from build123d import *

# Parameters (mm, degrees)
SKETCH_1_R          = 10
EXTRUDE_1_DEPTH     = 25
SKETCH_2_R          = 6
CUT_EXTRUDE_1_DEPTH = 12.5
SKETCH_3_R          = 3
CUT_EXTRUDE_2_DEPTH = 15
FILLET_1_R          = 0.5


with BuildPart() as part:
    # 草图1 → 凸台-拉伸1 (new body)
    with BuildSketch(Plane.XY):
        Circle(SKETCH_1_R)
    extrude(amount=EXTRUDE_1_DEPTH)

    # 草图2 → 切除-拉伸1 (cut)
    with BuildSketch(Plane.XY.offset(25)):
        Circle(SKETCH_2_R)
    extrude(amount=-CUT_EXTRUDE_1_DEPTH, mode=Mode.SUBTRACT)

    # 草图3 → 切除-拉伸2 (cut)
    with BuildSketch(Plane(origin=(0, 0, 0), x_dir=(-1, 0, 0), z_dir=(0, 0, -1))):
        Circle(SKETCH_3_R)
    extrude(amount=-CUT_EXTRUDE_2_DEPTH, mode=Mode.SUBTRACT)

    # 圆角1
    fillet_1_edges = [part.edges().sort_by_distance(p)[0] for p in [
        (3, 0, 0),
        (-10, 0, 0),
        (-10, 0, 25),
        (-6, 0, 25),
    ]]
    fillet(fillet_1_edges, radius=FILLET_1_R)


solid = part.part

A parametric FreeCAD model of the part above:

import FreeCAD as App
import Part
import Sketcher
Q = App.Units.Quantity


def edges_at(feature, points):
    """Names of the edges that pass closest to the given points."""
    edges = feature.Shape.Edges
    near = lambda p: min(range(len(edges)), key=lambda i: edges[i].distToShape(Part.Vertex(*p))[0])
    return sorted({f"Edge{near(p) + 1}" for p in points})

doc = App.newDocument("Part")
body = doc.addObject("PartDesign::Body", "Body")

# Sketch on XY plane
sketch1 = body.newObject("Sketcher::SketchObject", "Sketch")
sketch1.AttachmentSupport = (doc.getObject("XY_Plane"), [""])
sketch1.MapMode = "FlatFace"
sketch1.addGeometry(Part.Circle(App.Vector(0, 0, 0), App.Vector(0, 0, 1), 10), False)
sketch1.addConstraint(Sketcher.Constraint("Coincident", 0, 3, -1, 1))
sketch1.addConstraint(Sketcher.Constraint("Diameter", 0, Q("20 mm")))
pad1 = body.newObject("PartDesign::Pad", "Pad")
pad1.Profile = sketch1
pad1.Length = 25

# Sketch on XY plane
sketch2 = body.newObject("Sketcher::SketchObject", "Sketch001")
sketch2.AttachmentSupport = (doc.getObject("XY_Plane"), [""])
sketch2.MapMode = "FlatFace"
sketch2.AttachmentOffset = App.Placement(App.Vector(0, 0, 25), App.Rotation())
sketch2.addGeometry(Part.Circle(App.Vector(0, 0, 0), App.Vector(0, 0, 1), 6), False)
sketch2.addConstraint(Sketcher.Constraint("Coincident", 0, 3, -1, 1))
sketch2.addConstraint(Sketcher.Constraint("Diameter", 0, Q("12 mm")))
pocket1 = body.newObject("PartDesign::Pocket", "Pocket")
pocket1.Profile = sketch2
pocket1.Length = 12.5

# Sketch on XY plane
sketch3 = body.newObject("Sketcher::SketchObject", "Sketch002")
sketch3.AttachmentSupport = (doc.getObject("XY_Plane"), [""])
sketch3.MapMode = "FlatFace"
sketch3.addGeometry(Part.Circle(App.Vector(0, 0, 0), App.Vector(0, 0, 1), 3), False)
sketch3.addConstraint(Sketcher.Constraint("Coincident", 0, 3, -1, 1))
sketch3.addConstraint(Sketcher.Constraint("Diameter", 0, Q("6 mm")))
pocket2 = body.newObject("PartDesign::Pocket", "Pocket001")
pocket2.Profile = sketch3
pocket2.Length = 15
pocket2.Reversed = True
doc.recompute()

fillet = body.newObject("PartDesign::Fillet", "Fillet")
fillet.Base = (pocket2, edges_at(pocket2, [
    (3, 0, 0),
    (-10, 0, 0),
    (-10, 0, 25),
    (-6, 0, 25),
]))
fillet.Radius = 0.5

doc.recompute()
